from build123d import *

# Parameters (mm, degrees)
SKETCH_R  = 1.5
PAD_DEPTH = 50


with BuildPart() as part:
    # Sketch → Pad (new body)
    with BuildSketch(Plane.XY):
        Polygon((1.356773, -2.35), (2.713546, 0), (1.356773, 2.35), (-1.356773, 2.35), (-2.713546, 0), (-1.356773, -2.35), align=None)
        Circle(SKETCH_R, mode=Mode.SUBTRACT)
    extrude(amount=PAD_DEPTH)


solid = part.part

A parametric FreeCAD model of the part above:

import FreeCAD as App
import Part
import Sketcher
from FreeCAD import Vector
Q = App.Units.Quantity

doc = App.newDocument("Part")
body = doc.addObject("PartDesign::Body", "Body")

sketch1 = body.newObject("Sketcher::SketchObject", "Sketch")
sketch1.AttachmentSupport = (doc.getObject("XY_Plane"), [""])
sketch1.MapMode = "FlatFace"
sketch1.addGeometry(Part.LineSegment(Vector(1.4, -2.4, 0), Vector(2.7, 0, 0)), False)
sketch1.addGeometry(Part.LineSegment(Vector(2.7, 0, 0), Vector(1.4, 2.4, 0)), False)
sketch1.addGeometry(Part.LineSegment(Vector(1.4, 2.4, 0), Vector(-1.4, 2.4, 0)), False)
sketch1.addGeometry(Part.LineSegment(Vector(-1.4, 2.4, 0), Vector(-2.7, 0, 0)), False)
sketch1.addGeometry(Part.LineSegment(Vector(-2.7, 0, 0), Vector(-1.4, -2.4, 0)), False)
sketch1.addGeometry(Part.LineSegment(Vector(-1.4, -2.4, 0), Vector(1.4, -2.4, 0)), False)
sketch1.addGeometry(Part.Circle(Vector(0, 0, 0), Vector(0, 0, 1), 1.5), False)
sketch1.addConstraint(Sketcher.Constraint("Coincident", 0, 2, 1, 1))
sketch1.addConstraint(Sketcher.Constraint("Coincident", 1, 2, 2, 1))
sketch1.addConstraint(Sketcher.Constraint("Coincident", 2, 2, 3, 1))
sketch1.addConstraint(Sketcher.Constraint("Coincident", 3, 2, 4, 1))
sketch1.addConstraint(Sketcher.Constraint("Coincident", 4, 2, 5, 1))
sketch1.addConstraint(Sketcher.Constraint("Coincident", 5, 2, 0, 1))
sketch1.addConstraint(Sketcher.Constraint("Horizontal", 2))
sketch1.addConstraint(Sketcher.Constraint("Horizontal", 5))
sketch1.addConstraint(Sketcher.Constraint("Coincident", 6, 3, -1, 1))
sketch1.addConstraint(Sketcher.Constraint("Symmetric", 0, 2, 3, 2, -1, 1))
sketch1.addConstraint(Sketcher.Constraint("Symmetric", 1, 2, 4, 2, -1, 1))
sketch1.addConstraint(Sketcher.Constraint("PointOnObject", 0, 2, -1))
sketch1.addConstraint(Sketcher.Constraint("Parallel", 0, 3))
sketch1.addConstraint(Sketcher.Constraint("Vertical", 2, 2, 4, 2))
sketch1.addConstraint(Sketcher.Constraint("Diameter", 6, 3.0))
sketch1.addConstraint(Sketcher.Constraint("Angle", 0, Q("60.000002 deg")))
sketch1.addConstraint(Sketcher.Constraint("DistanceY", 4, 2, 2, 2, 4.7))
sketch1.addConstraint(Sketcher.Constraint("DistanceX", 2, 2, 2, 1, 2.713546))
pad1 = body.newObject("PartDesign::Pad", "Pad")
pad1.Profile = sketch1
pad1.Length = 50

doc.recompute()
